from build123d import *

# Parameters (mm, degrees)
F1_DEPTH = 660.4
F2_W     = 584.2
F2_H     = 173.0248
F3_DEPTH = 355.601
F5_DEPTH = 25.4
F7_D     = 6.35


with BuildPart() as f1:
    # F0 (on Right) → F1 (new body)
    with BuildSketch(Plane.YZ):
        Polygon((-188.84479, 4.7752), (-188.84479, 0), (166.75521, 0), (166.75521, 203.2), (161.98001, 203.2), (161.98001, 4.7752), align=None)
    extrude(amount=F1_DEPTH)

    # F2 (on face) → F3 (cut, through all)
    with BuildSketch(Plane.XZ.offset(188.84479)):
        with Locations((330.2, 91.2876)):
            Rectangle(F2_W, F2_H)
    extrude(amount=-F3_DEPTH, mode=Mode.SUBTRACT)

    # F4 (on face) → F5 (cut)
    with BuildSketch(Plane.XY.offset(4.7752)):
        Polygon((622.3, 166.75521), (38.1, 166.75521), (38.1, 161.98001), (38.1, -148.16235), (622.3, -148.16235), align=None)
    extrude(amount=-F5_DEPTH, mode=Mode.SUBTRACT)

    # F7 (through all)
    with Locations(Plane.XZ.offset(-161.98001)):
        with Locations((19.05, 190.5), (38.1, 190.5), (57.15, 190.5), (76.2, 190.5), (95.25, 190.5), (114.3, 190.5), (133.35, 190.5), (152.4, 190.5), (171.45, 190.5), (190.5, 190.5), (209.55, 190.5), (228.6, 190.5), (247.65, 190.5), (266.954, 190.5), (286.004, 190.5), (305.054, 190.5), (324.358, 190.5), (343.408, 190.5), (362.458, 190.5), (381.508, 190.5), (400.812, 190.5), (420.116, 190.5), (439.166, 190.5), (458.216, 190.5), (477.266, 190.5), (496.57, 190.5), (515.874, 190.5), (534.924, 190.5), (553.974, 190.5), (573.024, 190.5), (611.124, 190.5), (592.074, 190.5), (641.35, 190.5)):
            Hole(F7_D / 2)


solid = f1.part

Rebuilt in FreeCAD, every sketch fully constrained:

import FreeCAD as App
import Part
import Sketcher
from FreeCAD import Vector
Q = App.Units.Quantity

doc = App.newDocument("Part")
body = doc.addObject("PartDesign::Body", "Body")

# Sketch on YZ plane
sketch1 = doc.addObject("Sketcher::SketchObject", "Sketch")
body.addObject(sketch1)
sketch1.AttachmentSupport = (doc.YZ_Plane, [""])
sketch1.MapMode = "FlatFace"
sketch1.addGeometry(Part.LineSegment(Vector(-188.84479, 4.7752, 0), Vector(-188.84479, 0, 0)), False)
sketch1.addGeometry(Part.LineSegment(Vector(-188.84479, 0, 0), Vector(166.75521, 0, 0)), False)
sketch1.addGeometry(Part.LineSegment(Vector(166.75521, 0, 0), Vector(166.75521, 203.2, 0)), False)
sketch1.addGeometry(Part.LineSegment(Vector(166.75521, 203.2, 0), Vector(161.98001, 203.2, 0)), False)
sketch1.addGeometry(Part.LineSegment(Vector(161.98001, 203.2, 0), Vector(161.98001, 4.7752, 0)), False)
sketch1.addGeometry(Part.LineSegment(Vector(161.98001, 4.7752, 0), Vector(-188.84479, 4.7752, 0)), False)
sketch1.addConstraint(Sketcher.Constraint("Coincident", 0, 2, 1, 1))
sketch1.addConstraint(Sketcher.Constraint("Coincident", 1, 2, 2, 1))
sketch1.addConstraint(Sketcher.Constraint("Coincident", 2, 2, 3, 1))
sketch1.addConstraint(Sketcher.Constraint("Coincident", 3, 2, 4, 1))
sketch1.addConstraint(Sketcher.Constraint("Coincident", 4, 2, 5, 1))
sketch1.addConstraint(Sketcher.Constraint("Coincident", 5, 2, 0, 1))
sketch1.addConstraint(Sketcher.Constraint("Vertical", 0))
sketch1.addConstraint(Sketcher.Constraint("Horizontal", 1))
sketch1.addConstraint(Sketcher.Constraint("Vertical", 2))
sketch1.addConstraint(Sketcher.Constraint("Horizontal", 3))
sketch1.addConstraint(Sketcher.Constraint("Vertical", 4))
sketch1.addConstraint(Sketcher.Constraint("Horizontal", 5))
sketch1.addConstraint(Sketcher.Constraint("PointOnObject", 0, 2, -1))
sketch1.addConstraint(Sketcher.Constraint("Equal", 3, 0))
sketch1.addConstraint(Sketcher.Constraint("DistanceX", 1, 1, 1, 2, Q("14 in")))
sketch1.addConstraint(Sketcher.Constraint("DistanceY", 2, 1, 2, 2, Q("8 in")))
sketch1.addConstraint(Sketcher.Constraint("DistanceX", 3, 2, 3, 1, Q("0.188 in")))
sketch1.addConstraint(Sketcher.Constraint("DistanceX", 0, 2, -1, 1, Q("188.84479 mm")))
pad1 = doc.addObject("PartDesign::Pad", "Pad")
body.addObject(pad1)
pad1.Profile = sketch1
pad1.Length = Q("26 in")

# Sketch on XZ plane
sketch2 = doc.addObject("Sketcher::SketchObject", "Sketch001")
body.addObject(sketch2)
sketch2.AttachmentSupport = (doc.XZ_Plane, [""])
sketch2.MapMode = "FlatFace"
sketch2.AttachmentOffset = App.Placement(Vector(0, 0, 188.84479), App.Rotation())
sketch2.addGeometry(Part.LineSegment(Vector(38.1, 177.8, 0), Vector(38.1, 4.7752, 0)), False)
sketch2.addGeometry(Part.LineSegment(Vector(38.1, 4.7752, 0), Vector(622.3, 4.7752, 0)), False)
sketch2.addGeometry(Part.LineSegment(Vector(622.3, 4.7752, 0), Vector(622.3, 177.8, 0)), False)
sketch2.addGeometry(Part.LineSegment(Vector(622.3, 177.8, 0), Vector(38.1, 177.8, 0)), False)
sketch2.addConstraint(Sketcher.Constraint("Coincident", 0, 2, 1, 1))
sketch2.addConstraint(Sketcher.Constraint("Coincident", 1, 2, 2, 1))
sketch2.addConstraint(Sketcher.Constraint("Coincident", 2, 2, 3, 1))
sketch2.addConstraint(Sketcher.Constraint("Coincident", 3, 2, 0, 1))
sketch2.addConstraint(Sketcher.Constraint("Vertical", 0))
sketch2.addConstraint(Sketcher.Constraint("Horizontal", 1))
sketch2.addConstraint(Sketcher.Constraint("Vertical", 2))
sketch2.addConstraint(Sketcher.Constraint("Horizontal", 3))
sketch2.addConstraint(Sketcher.Constraint("DistanceX", 1, 1, 1, 2, Q("23 in")))
sketch2.addConstraint(Sketcher.Constraint("DistanceY", -1, 1, 2, 2, Q("7 in")))
sketch2.addConstraint(Sketcher.Constraint("DistanceX", -1, 1, 0, 2, Q("1.5 in")))
sketch2.addConstraint(Sketcher.Constraint("DistanceY", 0, 2, 0, 1, Q("6.812 in")))
pocket1 = doc.addObject("PartDesign::Pocket", "Pocket")
body.addObject(pocket1)
pocket1.Profile = sketch2
pocket1.Type = "ThroughAll"

# Sketch on XY plane
sketch3 = doc.addObject("Sketcher::SketchObject", "Sketch002")
body.addObject(sketch3)
sketch3.AttachmentSupport = (doc.XY_Plane, [""])
sketch3.MapMode = "FlatFace"
sketch3.AttachmentOffset = App.Placement(Vector(0, 0, 0.188 * 25.4), App.Rotation())
sketch3.addGeometry(Part.LineSegment(Vector(622.3, 166.75521, 0), Vector(38.1, 166.75521, 0)), False)
sketch3.addGeometry(Part.LineSegment(Vector(38.1, 166.75521, 0), Vector(38.1, -148.16235, 0)), False)
sketch3.addGeometry(Part.LineSegment(Vector(38.1, -148.16235, 0), Vector(622.3, -148.16235, 0)), False)
sketch3.addGeometry(Part.LineSegment(Vector(622.3, -148.16235, 0), Vector(622.3, 166.75521, 0)), False)
sketch3.addConstraint(Sketcher.Constraint("Coincident", 0, 2, 1, 1))
sketch3.addConstraint(Sketcher.Constraint("Coincident", 1, 2, 2, 1))
sketch3.addConstraint(Sketcher.Constraint("Coincident", 2, 2, 3, 1))
sketch3.addConstraint(Sketcher.Constraint("Coincident", 3, 2, 0, 1))
sketch3.addConstraint(Sketcher.Constraint("Horizontal", 0))
sketch3.addConstraint(Sketcher.Constraint("Vertical", 1))
sketch3.addConstraint(Sketcher.Constraint("Horizontal", 2))
sketch3.addConstraint(Sketcher.Constraint("Vertical", 3))
sketch3.addConstraint(Sketcher.Constraint("DistanceX", 0, 2, 0, 1, Q("23 in")))
sketch3.addConstraint(Sketcher.Constraint("DistanceX", -1, 1, 0, 2, Q("1.5 in")))
sketch3.addConstraint(Sketcher.Constraint("DistanceY", 1, 2, 1, 1, Q("314.91756 mm")))
sketch3.addConstraint(Sketcher.Constraint("DistanceY", -1, 1, 0, 2, Q("166.75521 mm")))
pocket2 = doc.addObject("PartDesign::Pocket", "Pocket001")
body.addObject(pocket2)
pocket2.Profile = sketch3
pocket2.Length = Q("1 in")

# Sketch on XZ plane
sketch4 = doc.addObject("Sketcher::SketchObject", "Sketch003")
body.addObject(sketch4)
sketch4.AttachmentSupport = (doc.XZ_Plane, [""])
sketch4.MapMode = "FlatFace"
sketch4.AttachmentOffset = App.Placement(Vector(0, 0, -161.98001), App.Rotation())
sketch4.addGeometry(Part.Circle(Vector(19.05, 190.5, 0), Vector(0, 0, 1), 3.175), False)
sketch4.addGeometry(Part.Circle(Vector(38.1, 190.5, 0), Vector(0, 0, 1), 3.175), False)
sketch4.addGeometry(Part.Circle(Vector(57.15, 190.5, 0), Vector(0, 0, 1), 3.175), False)
sketch4.addGeometry(Part.Circle(Vector(76.2, 190.5, 0), Vector(0, 0, 1), 3.175), False)
sketch4.addGeometry(Part.Circle(Vector(95.25, 190.5, 0), Vector(0, 0, 1), 3.175), False)
sketch4.addGeometry(Part.Circle(Vector(114.3, 190.5, 0), Vector(0, 0, 1), 3.175), False)
sketch4.addGeometry(Part.Circle(Vector(133.35, 190.5, 0), Vector(0, 0, 1), 3.175), False)
sketch4.addGeometry(Part.Circle(Vector(152.4, 190.5, 0), Vector(0, 0, 1), 3.175), False)
sketch4.addGeometry(Part.Circle(Vector(171.45, 190.5, 0), Vector(0, 0, 1), 3.175), False)
sketch4.addGeometry(Part.Circle(Vector(190.5, 190.5, 0), Vector(0, 0, 1), 3.175), False)
sketch4.addGeometry(Part.Circle(Vector(209.55, 190.5, 0), Vector(0, 0, 1), 3.175), False)
sketch4.addGeometry(Part.Circle(Vector(228.6, 190.5, 0), Vector(0, 0, 1), 3.175), False)
sketch4.addGeometry(Part.Circle(Vector(247.65, 190.5, 0), Vector(0, 0, 1), 3.175), False)
sketch4.addGeometry(Part.Circle(Vector(266.954, 190.5, 0), Vector(0, 0, 1), 3.175), False)
sketch4.addGeometry(Part.Circle(Vector(286.004, 190.5, 0), Vector(0, 0, 1), 3.175), False)
sketch4.addGeometry(Part.Circle(Vector(305.054, 190.5, 0), Vector(0, 0, 1), 3.175), False)
sketch4.addGeometry(Part.Circle(Vector(324.358, 190.5, 0), Vector(0, 0, 1), 3.175), False)
sketch4.addGeometry(Part.Circle(Vector(343.408, 190.5, 0), Vector(0, 0, 1), 3.175), False)
sketch4.addGeometry(Part.Circle(Vector(362.458, 190.5, 0), Vector(0, 0, 1), 3.175), False)
sketch4.addGeometry(Part.Circle(Vector(381.508, 190.5, 0), Vector(0, 0, 1), 3.175), False)
sketch4.addGeometry(Part.Circle(Vector(400.812, 190.5, 0), Vector(0, 0, 1), 3.175), False)
sketch4.addGeometry(Part.Circle(Vector(420.116, 190.5, 0), Vector(0, 0, 1), 3.175), False)
sketch4.addGeometry(Part.Circle(Vector(439.166, 190.5, 0), Vector(0, 0, 1), 3.175), False)
sketch4.addGeometry(Part.Circle(Vector(458.216, 190.5, 0), Vector(0, 0, 1), 3.175), False)
sketch4.addGeometry(Part.Circle(Vector(477.266, 190.5, 0), Vector(0, 0, 1), 3.175), False)
sketch4.addGeometry(Part.Circle(Vector(496.57, 190.5, 0), Vector(0, 0, 1), 3.175), False)
sketch4.addGeometry(Part.Circle(Vector(515.874, 190.5, 0), Vector(0, 0, 1), 3.175), False)
sketch4.addGeometry(Part.Circle(Vector(534.924, 190.5, 0), Vector(0, 0, 1), 3.175), False)
sketch4.addGeometry(Part.Circle(Vector(553.974, 190.5, 0), Vector(0, 0, 1), 3.175), False)
sketch4.addGeometry(Part.Circle(Vector(573.024, 190.5, 0), Vector(0, 0, 1), 3.175), False)
sketch4.addGeometry(Part.Circle(Vector(611.124, 190.5, 0), Vector(0, 0, 1), 3.175), False)
sketch4.addGeometry(Part.Circle(Vector(592.074, 190.5, 0), Vector(0, 0, 1), 3.175), False)
sketch4.addGeometry(Part.Circle(Vector(641.35, 190.5, 0), Vector(0, 0, 1), 3.175), False)
sketch4.addConstraint(Sketcher.Constraint("Equal", 0, 1))
sketch4.addConstraint(Sketcher.Constraint("Equal", 1, 2))
sketch4.addConstraint(Sketcher.Constraint("Equal", 2, 3))
sketch4.addConstraint(Sketcher.Constraint("Equal", 3, 4))
sketch4.addConstraint(Sketcher.Constraint("Equal", 4, 5))
sketch4.addConstraint(Sketcher.Constraint("Equal", 5, 6))
sketch4.addConstraint(Sketcher.Constraint("Equal", 6, 7))
sketch4.addConstraint(Sketcher.Constraint("Equal", 7, 8))
sketch4.addConstraint(Sketcher.Constraint("Equal", 8, 9))
sketch4.addConstraint(Sketcher.Constraint("Equal", 9, 10))
sketch4.addConstraint(Sketcher.Constraint("Equal", 10, 11))
sketch4.addConstraint(Sketcher.Constraint("Equal", 11, 12))
sketch4.addConstraint(Sketcher.Constraint("Equal", 12, 13))
sketch4.addConstraint(Sketcher.Constraint("Equal", 13, 14))
sketch4.addConstraint(Sketcher.Constraint("Equal", 14, 15))
sketch4.addConstraint(Sketcher.Constraint("Equal", 15, 16))
sketch4.addConstraint(Sketcher.Constraint("Equal", 16, 17))
sketch4.addConstraint(Sketcher.Constraint("Equal", 17, 18))
sketch4.addConstraint(Sketcher.Constraint("Equal", 18, 19))
sketch4.addConstraint(Sketcher.Constraint("Equal", 19, 20))
sketch4.addConstraint(Sketcher.Constraint("Equal", 20, 21))
sketch4.addConstraint(Sketcher.Constraint("Equal", 21, 22))
sketch4.addConstraint(Sketcher.Constraint("Equal", 22, 23))
sketch4.addConstraint(Sketcher.Constraint("Equal", 23, 24))
sketch4.addConstraint(Sketcher.Constraint("Equal", 24, 25))
sketch4.addConstraint(Sketcher.Constraint("Equal", 25, 26))
sketch4.addConstraint(Sketcher.Constraint("Equal", 26, 27))
sketch4.addConstraint(Sketcher.Constraint("Equal", 27, 28))
sketch4.addConstraint(Sketcher.Constraint("Equal", 28, 29))
sketch4.addConstraint(Sketcher.Constraint("Equal", 29, 30))
sketch4.addConstraint(Sketcher.Constraint("Equal", 30, 31))
sketch4.addConstraint(Sketcher.Constraint("Equal", 31, 32))
sketch4.addConstraint(Sketcher.Constraint("Horizontal", 0, 3, 1, 3))
sketch4.addConstraint(Sketcher.Constraint("Horizontal", 1, 3, 2, 3))
sketch4.addConstraint(Sketcher.Constraint("Horizontal", 2, 3, 3, 3))
sketch4.addConstraint(Sketcher.Constraint("Horizontal", 3, 3, 4, 3))
sketch4.addConstraint(Sketcher.Constraint("Horizontal", 4, 3, 5, 3))
sketch4.addConstraint(Sketcher.Constraint("Horizontal", 5, 3, 6, 3))
sketch4.addConstraint(Sketcher.Constraint("Horizontal", 6, 3, 7, 3))
sketch4.addConstraint(Sketcher.Constraint("Horizontal", 7, 3, 8, 3))
sketch4.addConstraint(Sketcher.Constraint("Horizontal", 8, 3, 9, 3))
sketch4.addConstraint(Sketcher.Constraint("Horizontal", 9, 3, 10, 3))
sketch4.addConstraint(Sketcher.Constraint("Horizontal", 10, 3, 11, 3))
sketch4.addConstraint(Sketcher.Constraint("Horizontal", 11, 3, 12, 3))
sketch4.addConstraint(Sketcher.Constraint("Horizontal", 12, 3, 13, 3))
sketch4.addConstraint(Sketcher.Constraint("Horizontal", 13, 3, 14, 3))
sketch4.addConstraint(Sketcher.Constraint("Horizontal", 14, 3, 15, 3))
sketch4.addConstraint(Sketcher.Constraint("Horizontal", 15, 3, 16, 3))
sketch4.addConstraint(Sketcher.Constraint("Horizontal", 16, 3, 17, 3))
sketch4.addConstraint(Sketcher.Constraint("Horizontal", 17, 3, 18, 3))
sketch4.addConstraint(Sketcher.Constraint("Horizontal", 18, 3, 19, 3))
sketch4.addConstraint(Sketcher.Constraint("Horizontal", 19, 3, 20, 3))
sketch4.addConstraint(Sketcher.Constraint("Horizontal", 20, 3, 21, 3))
sketch4.addConstraint(Sketcher.Constraint("Horizontal", 21, 3, 22, 3))
sketch4.addConstraint(Sketcher.Constraint("Horizontal", 22, 3, 23, 3))
sketch4.addConstraint(Sketcher.Constraint("Horizontal", 23, 3, 24, 3))
sketch4.addConstraint(Sketcher.Constraint("Horizontal", 24, 3, 25, 3))
sketch4.addConstraint(Sketcher.Constraint("Horizontal", 25, 3, 26, 3))
sketch4.addConstraint(Sketcher.Constraint("Horizontal", 26, 3, 27, 3))
sketch4.addConstraint(Sketcher.Constraint("Horizontal", 27, 3, 28, 3))
sketch4.addConstraint(Sketcher.Constraint("Horizontal", 28, 3, 29, 3))
sketch4.addConstraint(Sketcher.Constraint("Horizontal", 29, 3, 30, 3))
sketch4.addConstraint(Sketcher.Constraint("Horizontal", 30, 3, 31, 3))
sketch4.addConstraint(Sketcher.Constraint("Horizontal", 31, 3, 32, 3))
sketch4.addConstraint(Sketcher.Constraint("Diameter", 0, Q("0.25 in")))
sketch4.addConstraint(Sketcher.Constraint("DistanceX", -1, 1, 3, 3, Q("3 in")))
sketch4.addConstraint(Sketcher.Constraint("DistanceX", -1, 1, 7, 3, Q("6 in")))
sketch4.addConstraint(Sketcher.Constraint("DistanceX", -1, 1, 11, 3, Q("9 in")))
sketch4.addConstraint(Sketcher.Constraint("DistanceX", 0, 3, 4, 3, Q("3 in")))
sketch4.addConstraint(Sketcher.Constraint("DistanceX", 1, 3, 5, 3, Q("3 in")))
sketch4.addConstraint(Sketcher.Constraint("DistanceX", 2, 3, 6, 3, Q("3 in")))
sketch4.addConstraint(Sketcher.Constraint("DistanceX", 4, 3, 8, 3, Q("3 in")))
sketch4.addConstraint(Sketcher.Constraint("DistanceX", 5, 3, 9, 3, Q("3 in")))
sketch4.addConstraint(Sketcher.Constraint("DistanceX", 6, 3, 10, 3, Q("3 in")))
sketch4.addConstraint(Sketcher.Constraint("DistanceX", 8, 3, 12, 3, Q("3 in")))
sketch4.addConstraint(Sketcher.Constraint("DistanceX", 27, 3, 30, 3, Q("3 in")))
sketch4.addConstraint(Sketcher.Constraint("DistanceX", 26, 3, 31, 3, Q("3 in")))
sketch4.addConstraint(Sketcher.Constraint("DistanceY", -1, 1, 0, 3, Q("7.5 in")))
sketch4.addConstraint(Sketcher.Constraint("DistanceX", -1, 1, 1, 3, Q("1.5 in")))
sketch4.addConstraint(Sketcher.Constraint("DistanceX", 0, 3, 2, 3, Q("1.5 in")))
sketch4.addConstraint(Sketcher.Constraint("DistanceX", 13, 3, 15, 3, Q("1.5 in")))
sketch4.addConstraint(Sketcher.Constraint("DistanceX", 16, 3, 18, 3, Q("1.5 in")))
sketch4.addConstraint(Sketcher.Constraint("DistanceX", 17, 3, 19, 3, Q("1.5 in")))
sketch4.addConstraint(Sketcher.Constraint("DistanceX", 21, 3, 23, 3, Q("1.5 in")))
sketch4.addConstraint(Sketcher.Constraint("DistanceX", 22, 3, 24, 3, Q("1.5 in")))
sketch4.addConstraint(Sketcher.Constraint("DistanceX", 26, 3, 28, 3, Q("1.5 in")))
sketch4.addConstraint(Sketcher.Constraint("DistanceX", 27, 3, 29, 3, Q("1.5 in")))
sketch4.addConstraint(Sketcher.Constraint("DistanceX", -1, 1, 0, 3, Q("0.75 in")))
sketch4.addConstraint(Sketcher.Constraint("DistanceX", -1, 1, 13, 3, Q("10.51 in")))
sketch4.addConstraint(Sketcher.Constraint("DistanceX", -1, 1, 14, 3, Q("11.26 in")))
sketch4.addConstraint(Sketcher.Constraint("DistanceX", -1, 1, 16, 3, Q("12.77 in")))
sketch4.addConstraint(Sketcher.Constraint("DistanceX", -1, 1, 17, 3, Q("13.52 in")))
sketch4.addConstraint(Sketcher.Constraint("DistanceX", -1, 1, 20, 3, Q("15.78 in")))
sketch4.addConstraint(Sketcher.Constraint("DistanceX", -1, 1, 21, 3, Q("16.54 in")))
sketch4.addConstraint(Sketcher.Constraint("DistanceX", -1, 1, 22, 3, Q("17.29 in")))
sketch4.addConstraint(Sketcher.Constraint("DistanceX", -1, 1, 25, 3, Q("19.55 in")))
sketch4.addConstraint(Sketcher.Constraint("DistanceX", -1, 1, 26, 3, Q("20.31 in")))
sketch4.addConstraint(Sketcher.Constraint("DistanceX", -1, 1, 27, 3, Q("21.06 in")))
sketch4.addConstraint(Sketcher.Constraint("DistanceX", -1, 1, 32, 3, Q("25.25 in")))
doc.recompute()
hole = doc.addObject("PartDesign::Hole", "Hole")
body.addObject(hole)
hole.Profile = sketch4
hole.ThreadType = "None"
hole.Diameter = Q("0.25 in")
hole.DepthType = "ThroughAll"

doc.recompute()
